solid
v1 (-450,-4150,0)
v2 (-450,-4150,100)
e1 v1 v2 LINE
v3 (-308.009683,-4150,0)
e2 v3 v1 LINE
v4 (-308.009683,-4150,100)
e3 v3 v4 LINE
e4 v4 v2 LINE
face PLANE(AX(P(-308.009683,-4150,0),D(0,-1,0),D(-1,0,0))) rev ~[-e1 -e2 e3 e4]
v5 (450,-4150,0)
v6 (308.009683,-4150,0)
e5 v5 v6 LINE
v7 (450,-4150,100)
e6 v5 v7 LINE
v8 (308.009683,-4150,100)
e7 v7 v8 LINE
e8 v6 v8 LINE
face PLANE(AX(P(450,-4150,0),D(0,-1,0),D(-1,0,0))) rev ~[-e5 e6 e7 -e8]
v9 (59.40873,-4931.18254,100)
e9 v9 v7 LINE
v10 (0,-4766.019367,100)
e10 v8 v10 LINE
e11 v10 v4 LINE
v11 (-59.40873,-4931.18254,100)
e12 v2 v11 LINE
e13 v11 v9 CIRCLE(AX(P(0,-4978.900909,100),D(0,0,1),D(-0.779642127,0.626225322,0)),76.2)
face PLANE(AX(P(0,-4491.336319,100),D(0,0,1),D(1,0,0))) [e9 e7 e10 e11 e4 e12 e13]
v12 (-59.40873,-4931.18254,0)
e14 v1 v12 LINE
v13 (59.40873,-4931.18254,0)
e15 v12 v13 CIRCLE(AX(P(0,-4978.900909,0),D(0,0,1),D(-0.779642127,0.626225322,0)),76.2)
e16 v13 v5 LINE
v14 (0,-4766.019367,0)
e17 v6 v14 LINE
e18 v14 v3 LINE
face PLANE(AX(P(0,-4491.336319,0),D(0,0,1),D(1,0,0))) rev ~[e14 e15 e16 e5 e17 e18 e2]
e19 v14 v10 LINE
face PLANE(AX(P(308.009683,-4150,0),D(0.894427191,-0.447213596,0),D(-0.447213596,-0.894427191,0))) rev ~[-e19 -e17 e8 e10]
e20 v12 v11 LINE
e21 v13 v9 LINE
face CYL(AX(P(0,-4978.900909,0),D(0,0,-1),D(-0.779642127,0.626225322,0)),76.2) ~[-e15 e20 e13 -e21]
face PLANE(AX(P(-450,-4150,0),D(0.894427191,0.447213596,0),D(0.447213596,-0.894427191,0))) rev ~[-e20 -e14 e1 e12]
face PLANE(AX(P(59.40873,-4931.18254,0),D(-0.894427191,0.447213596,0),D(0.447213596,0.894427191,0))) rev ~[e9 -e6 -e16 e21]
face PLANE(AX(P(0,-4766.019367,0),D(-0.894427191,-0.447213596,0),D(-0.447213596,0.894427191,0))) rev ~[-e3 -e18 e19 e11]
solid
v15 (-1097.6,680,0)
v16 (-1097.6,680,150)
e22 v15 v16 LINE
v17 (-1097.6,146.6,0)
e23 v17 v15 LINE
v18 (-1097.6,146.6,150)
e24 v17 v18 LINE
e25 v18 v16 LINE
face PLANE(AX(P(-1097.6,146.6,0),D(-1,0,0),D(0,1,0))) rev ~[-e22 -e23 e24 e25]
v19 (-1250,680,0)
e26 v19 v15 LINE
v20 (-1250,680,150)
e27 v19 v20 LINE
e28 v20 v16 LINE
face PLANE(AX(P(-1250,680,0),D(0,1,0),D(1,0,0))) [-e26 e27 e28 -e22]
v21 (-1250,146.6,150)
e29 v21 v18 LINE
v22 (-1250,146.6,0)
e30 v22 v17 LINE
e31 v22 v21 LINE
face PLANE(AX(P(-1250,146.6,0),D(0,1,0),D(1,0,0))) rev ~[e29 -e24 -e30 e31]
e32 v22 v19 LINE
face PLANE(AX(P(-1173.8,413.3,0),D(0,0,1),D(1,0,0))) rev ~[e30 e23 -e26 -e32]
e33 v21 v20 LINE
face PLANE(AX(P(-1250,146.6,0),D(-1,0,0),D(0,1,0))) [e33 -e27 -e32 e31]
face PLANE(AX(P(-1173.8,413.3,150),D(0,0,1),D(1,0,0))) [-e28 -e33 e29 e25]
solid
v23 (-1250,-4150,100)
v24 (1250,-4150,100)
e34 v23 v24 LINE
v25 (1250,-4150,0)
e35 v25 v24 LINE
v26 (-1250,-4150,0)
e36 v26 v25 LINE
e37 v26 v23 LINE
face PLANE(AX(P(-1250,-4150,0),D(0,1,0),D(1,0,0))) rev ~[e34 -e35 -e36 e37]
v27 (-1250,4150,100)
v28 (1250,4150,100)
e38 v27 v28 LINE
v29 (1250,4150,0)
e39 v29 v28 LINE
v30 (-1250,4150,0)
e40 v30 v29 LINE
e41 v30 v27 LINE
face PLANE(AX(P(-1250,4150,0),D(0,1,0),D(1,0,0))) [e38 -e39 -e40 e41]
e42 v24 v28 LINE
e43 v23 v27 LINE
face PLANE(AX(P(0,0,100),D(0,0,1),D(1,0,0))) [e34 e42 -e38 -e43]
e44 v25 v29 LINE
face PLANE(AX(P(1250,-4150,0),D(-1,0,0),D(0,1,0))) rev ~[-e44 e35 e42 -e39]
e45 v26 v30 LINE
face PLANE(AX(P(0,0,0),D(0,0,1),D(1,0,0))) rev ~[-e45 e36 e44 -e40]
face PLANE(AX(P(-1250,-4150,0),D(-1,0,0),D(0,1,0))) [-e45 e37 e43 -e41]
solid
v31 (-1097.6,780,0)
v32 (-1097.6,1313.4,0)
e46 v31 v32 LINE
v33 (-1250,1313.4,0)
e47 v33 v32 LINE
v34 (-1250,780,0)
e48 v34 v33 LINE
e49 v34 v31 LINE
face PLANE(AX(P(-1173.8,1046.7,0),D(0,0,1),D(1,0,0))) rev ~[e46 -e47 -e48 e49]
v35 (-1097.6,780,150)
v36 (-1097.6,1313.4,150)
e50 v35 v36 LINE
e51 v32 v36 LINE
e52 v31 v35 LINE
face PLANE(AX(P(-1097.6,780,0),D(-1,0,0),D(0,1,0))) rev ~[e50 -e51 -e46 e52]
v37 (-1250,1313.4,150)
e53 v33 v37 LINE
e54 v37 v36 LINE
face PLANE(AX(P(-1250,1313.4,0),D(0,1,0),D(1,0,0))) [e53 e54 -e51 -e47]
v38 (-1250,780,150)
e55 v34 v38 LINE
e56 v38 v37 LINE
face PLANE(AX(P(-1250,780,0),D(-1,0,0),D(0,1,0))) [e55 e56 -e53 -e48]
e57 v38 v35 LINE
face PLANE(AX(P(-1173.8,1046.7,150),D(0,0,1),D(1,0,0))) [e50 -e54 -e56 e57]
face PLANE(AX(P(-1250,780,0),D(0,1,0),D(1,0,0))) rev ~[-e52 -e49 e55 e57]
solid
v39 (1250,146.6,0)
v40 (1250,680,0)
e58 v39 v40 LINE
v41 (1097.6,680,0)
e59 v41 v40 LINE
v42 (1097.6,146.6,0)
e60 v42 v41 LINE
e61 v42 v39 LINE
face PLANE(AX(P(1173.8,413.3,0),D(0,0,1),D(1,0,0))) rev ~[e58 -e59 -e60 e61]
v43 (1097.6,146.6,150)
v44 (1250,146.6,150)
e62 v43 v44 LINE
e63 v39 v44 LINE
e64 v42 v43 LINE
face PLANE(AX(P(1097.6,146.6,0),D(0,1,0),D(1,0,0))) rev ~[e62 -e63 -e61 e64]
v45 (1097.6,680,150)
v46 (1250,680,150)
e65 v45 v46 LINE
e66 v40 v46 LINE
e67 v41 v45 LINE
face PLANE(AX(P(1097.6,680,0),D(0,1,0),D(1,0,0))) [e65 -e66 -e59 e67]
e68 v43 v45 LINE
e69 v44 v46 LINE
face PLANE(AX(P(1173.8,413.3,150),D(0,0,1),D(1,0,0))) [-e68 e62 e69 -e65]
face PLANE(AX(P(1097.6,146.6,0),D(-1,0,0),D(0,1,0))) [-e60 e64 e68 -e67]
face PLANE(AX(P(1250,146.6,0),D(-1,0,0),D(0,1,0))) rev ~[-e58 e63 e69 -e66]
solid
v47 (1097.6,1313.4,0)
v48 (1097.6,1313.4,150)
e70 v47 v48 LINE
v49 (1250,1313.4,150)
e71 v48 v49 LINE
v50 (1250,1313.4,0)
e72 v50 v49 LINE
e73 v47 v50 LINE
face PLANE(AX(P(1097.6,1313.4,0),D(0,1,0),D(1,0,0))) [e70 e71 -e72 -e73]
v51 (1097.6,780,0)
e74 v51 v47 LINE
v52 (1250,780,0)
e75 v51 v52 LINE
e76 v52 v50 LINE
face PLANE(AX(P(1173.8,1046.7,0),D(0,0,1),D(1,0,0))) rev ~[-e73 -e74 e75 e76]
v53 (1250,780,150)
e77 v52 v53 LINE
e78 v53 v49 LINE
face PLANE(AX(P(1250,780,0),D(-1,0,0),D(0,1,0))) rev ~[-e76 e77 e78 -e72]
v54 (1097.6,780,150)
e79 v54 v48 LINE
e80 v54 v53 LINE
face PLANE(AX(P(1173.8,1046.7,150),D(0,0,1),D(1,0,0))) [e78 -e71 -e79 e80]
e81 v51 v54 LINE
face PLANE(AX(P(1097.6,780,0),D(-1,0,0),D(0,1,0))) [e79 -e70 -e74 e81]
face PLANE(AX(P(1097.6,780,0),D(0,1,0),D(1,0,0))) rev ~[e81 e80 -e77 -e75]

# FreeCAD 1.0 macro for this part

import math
import FreeCAD as App
import Part
import Sketcher
from FreeCAD import Vector
Q = App.Units.Quantity

doc = App.newDocument("Part")
body = doc.addObject("PartDesign::Body", "Body")

# Sketch on XY plane
sketch1 = body.newObject("Sketcher::SketchObject", "Sketch")
sketch1.AttachmentSupport = (doc.getObject("XY_Plane"), [""])
sketch1.MapMode = "FlatFace"
sketch1.addGeometry([
    Part.LineSegment(Vector(-1250, 4150, 0), Vector(-1250, -4150, 0)),
    Part.LineSegment(Vector(-1250, -4150, 0), Vector(1250, -4150, 0)),
    Part.LineSegment(Vector(1250, -4150, 0), Vector(1250, 4150, 0)),
    Part.LineSegment(Vector(1250, 4150, 0), Vector(-1250, 4150, 0)),
], False)
sketch1.addConstraint([
    Sketcher.Constraint("Coincident", 0, 2, 1, 1),
    Sketcher.Constraint("Coincident", 1, 2, 2, 1),
    Sketcher.Constraint("Coincident", 2, 2, 3, 1),
    Sketcher.Constraint("Coincident", 3, 2, 0, 1),
    Sketcher.Constraint("Vertical", 0),
    Sketcher.Constraint("Horizontal", 1),
    Sketcher.Constraint("Vertical", 2),
    Sketcher.Constraint("Horizontal", 3),
    Sketcher.Constraint("Symmetric", 0, 2, 2, 2, -1, 1),
    Sketcher.Constraint("DistanceX", 1, 1, 1, 2, Q("2500 mm")),
    Sketcher.Constraint("DistanceY", 0, 2, 0, 1, Q("8300 mm")),
])
pad1 = body.newObject("PartDesign::Pad", "Pad")
pad1.Profile = sketch1
pad1.Length = 100
body2 = doc.addObject("PartDesign::Body", "Body001")

# Sketch on XY plane
sketch2 = body2.newObject("Sketcher::SketchObject", "Sketch001")
sketch2.AttachmentSupport = (doc.getObject("XY_Plane001"), [""])
sketch2.MapMode = "FlatFace"
sketch2.addGeometry([
    Part.LineSegment(Vector(59, -4931, 0), Vector(450, -4150, 0)),  # 0
    Part.LineSegment(Vector(450, -4150, 0), Vector(308, -4150, 0)),  # 1
    Part.LineSegment(Vector(308, -4150, 0), Vector(0, -4766, 0)),  # 2
    Part.LineSegment(Vector(0, -4766, 0), Vector(-308, -4150, 0)),  # 3
    Part.LineSegment(Vector(-308, -4150, 0), Vector(-450, -4150, 0)),  # 4
    Part.LineSegment(Vector(-450, -4150, 0), Vector(-59, -4931, 0)),  # 5
    Part.ArcOfCircle(Part.Circle(Vector(0, -4979, 0), Vector(0, 0, 1), 76), math.radians(141), math.radians(399)),  # 6
], False)
sketch2.addConstraint([
    Sketcher.Constraint("Coincident", 0, 2, 1, 1),
    Sketcher.Constraint("Coincident", 1, 2, 2, 1),
    Sketcher.Constraint("Coincident", 2, 2, 3, 1),
    Sketcher.Constraint("Coincident", 3, 2, 4, 1),
    Sketcher.Constraint("Coincident", 4, 2, 5, 1),
    Sketcher.Constraint("Coincident", 5, 2, 6, 1),
    Sketcher.Constraint("Coincident", 6, 2, 0, 1),
    Sketcher.Constraint("Horizontal", 1),
    Sketcher.Constraint("Horizontal", 4),
    Sketcher.Constraint("Symmetric", 1, 2, 3, 2, -2),
    Sketcher.Constraint("Symmetric", 5, 2, 6, 2, -2),
    Sketcher.Constraint("PointOnObject", 2, 2, -2),
    Sketcher.Constraint("Parallel", 0, 2),
    Sketcher.Constraint("Parallel", 3, 5),
    Sketcher.Constraint("Radius", 6, Q("76.2 mm")),
    Sketcher.Constraint("DistanceX", -1, 1, 0, 2, Q("450 mm")),
    Sketcher.Constraint("DistanceY", 0, 2, -1, 1, Q("4150 mm")),
    Sketcher.Constraint("Distance", 0, Q("873.388631 mm")),
    Sketcher.Constraint("Distance", 2, Q("688.73059 mm")),
    Sketcher.Constraint("DistanceX", 1, 2, 1, 1, Q("141.990317 mm")),
])
pad2 = body2.newObject("PartDesign::Pad", "Pad001")
pad2.Profile = sketch2
pad2.Length = 100
body3 = doc.addObject("PartDesign::Body", "Body002")

# Sketch on XY plane
sketch3 = body3.newObject("Sketcher::SketchObject", "Sketch002")
sketch3.AttachmentSupport = (doc.getObject("XY_Plane002"), [""])
sketch3.MapMode = "FlatFace"
sketch3.addGeometry([
    Part.LineSegment(Vector(-1250, 1313, 0), Vector(-1250, 780, 0)),
    Part.LineSegment(Vector(-1250, 780, 0), Vector(-1098, 780, 0)),
    Part.LineSegment(Vector(-1098, 780, 0), Vector(-1098, 1313, 0)),
    Part.LineSegment(Vector(-1098, 1313, 0), Vector(-1250, 1313, 0)),
], False)
sketch3.addConstraint([
    Sketcher.Constraint("Coincident", 0, 2, 1, 1),
    Sketcher.Constraint("Coincident", 1, 2, 2, 1),
    Sketcher.Constraint("Coincident", 2, 2, 3, 1),
    Sketcher.Constraint("Coincident", 3, 2, 0, 1),
    Sketcher.Constraint("Vertical", 0),
    Sketcher.Constraint("Horizontal", 1),
    Sketcher.Constraint("Vertical", 2),
    Sketcher.Constraint("Horizontal", 3),
    Sketcher.Constraint("DistanceX", 1, 1, 1, 2, Q("152.4 mm")),
    Sketcher.Constraint("DistanceY", 0, 2, 0, 1, Q("533.4 mm")),
    Sketcher.Constraint("DistanceX", 0, 2, -1, 1, Q("1250 mm")),
    Sketcher.Constraint("DistanceY", -1, 1, 0, 2, Q("780 mm")),
])
pad3 = body3.newObject("PartDesign::Pad", "Pad002")
pad3.Profile = sketch3
pad3.Length = 150
body4 = doc.addObject("PartDesign::Body", "Body003")

# Sketch on XY plane
sketch4 = body4.newObject("Sketcher::SketchObject", "Sketch003")
sketch4.AttachmentSupport = (doc.getObject("XY_Plane003"), [""])
sketch4.MapMode = "FlatFace"
sketch4.addGeometry([
    Part.LineSegment(Vector(-1250, 680, 0), Vector(-1250, 147, 0)),
    Part.LineSegment(Vector(-1250, 147, 0), Vector(-1098, 147, 0)),
    Part.LineSegment(Vector(-1098, 147, 0), Vector(-1098, 680, 0)),
    Part.LineSegment(Vector(-1098, 680, 0), Vector(-1250, 680, 0)),
], False)
sketch4.addConstraint([
    Sketcher.Constraint("Coincident", 0, 2, 1, 1),
    Sketcher.Constraint("Coincident", 1, 2, 2, 1),
    Sketcher.Constraint("Coincident", 2, 2, 3, 1),
    Sketcher.Constraint("Coincident", 3, 2, 0, 1),
    Sketcher.Constraint("Vertical", 0),
    Sketcher.Constraint("Horizontal", 1),
    Sketcher.Constraint("Vertical", 2),
    Sketcher.Constraint("Horizontal", 3),
    Sketcher.Constraint("DistanceX", 1, 1, 1, 2, Q("152.4 mm")),
    Sketcher.Constraint("DistanceY", 0, 2, 0, 1, Q("533.4 mm")),
    Sketcher.Constraint("DistanceX", 0, 2, -1, 1, Q("1250 mm")),
    Sketcher.Constraint("DistanceY", -1, 1, 2, 2, Q("680 mm")),
])
pad4 = body4.newObject("PartDesign::Pad", "Pad003")
pad4.Profile = sketch4
pad4.Length = 150
body5 = doc.addObject("PartDesign::Body", "Body004")

# Sketch on XY plane
sketch5 = body5.newObject("Sketcher::SketchObject", "Sketch004")
sketch5.AttachmentSupport = (doc.getObject("XY_Plane004"), [""])
sketch5.MapMode = "FlatFace"
sketch5.addGeometry([
    Part.LineSegment(Vector(1098, 680, 0), Vector(1098, 147, 0)),
    Part.LineSegment(Vector(1098, 147, 0), Vector(1250, 147, 0)),
    Part.LineSegment(Vector(1250, 147, 0), Vector(1250, 680, 0)),
    Part.LineSegment(Vector(1250, 680, 0), Vector(1098, 680, 0)),
], False)
sketch5.addConstraint([
    Sketcher.Constraint("Coincident", 0, 2, 1, 1),
    Sketcher.Constraint("Coincident", 1, 2, 2, 1),
    Sketcher.Constraint("Coincident", 2, 2, 3, 1),
    Sketcher.Constraint("Coincident", 3, 2, 0, 1),
    Sketcher.Constraint("Vertical", 0),
    Sketcher.Constraint("Horizontal", 1),
    Sketcher.Constraint("Vertical", 2),
    Sketcher.Constraint("Horizontal", 3),
    Sketcher.Constraint("DistanceX", 1, 1, 1, 2, Q("152.4 mm")),
    Sketcher.Constraint("DistanceY", 0, 2, 0, 1, Q("533.4 mm")),
    Sketcher.Constraint("DistanceX", -1, 1, 1, 2, Q("1250 mm")),
    Sketcher.Constraint("DistanceY", -1, 1, 2, 2, Q("680 mm")),
])
pad5 = body5.newObject("PartDesign::Pad", "Pad004")
pad5.Profile = sketch5
pad5.Length = 150
body6 = doc.addObject("PartDesign::Body", "Body005")

# Sketch on XY plane
sketch6 = body6.newObject("Sketcher::SketchObject", "Sketch005")
sketch6.AttachmentSupport = (doc.getObject("XY_Plane005"), [""])
sketch6.MapMode = "FlatFace"
sketch6.addGeometry([
    Part.LineSegment(Vector(1098, 1313, 0), Vector(1098, 780, 0)),
    Part.LineSegment(Vector(1098, 780, 0), Vector(1250, 780, 0)),
    Part.LineSegment(Vector(1250, 780, 0), Vector(1250, 1313, 0)),
    Part.LineSegment(Vector(1250, 1313, 0), Vector(1098, 1313, 0)),
], False)
sketch6.addConstraint([
    Sketcher.Constraint("Coincident", 0, 2, 1, 1),
    Sketcher.Constraint("Coincident", 1, 2, 2, 1),
    Sketcher.Constraint("Coincident", 2, 2, 3, 1),
    Sketcher.Constraint("Coincident", 3, 2, 0, 1),
    Sketcher.Constraint("Vertical", 0),
    Sketcher.Constraint("Horizontal", 1),
    Sketcher.Constraint("Vertical", 2),
    Sketcher.Constraint("Horizontal", 3),
    Sketcher.Constraint("DistanceX", 1, 1, 1, 2, Q("152.4 mm")),
    Sketcher.Constraint("DistanceY", 0, 2, 0, 1, Q("533.4 mm")),
    Sketcher.Constraint("DistanceY", -1, 1, 0, 2, Q("780 mm")),
    Sketcher.Constraint("DistanceX", -1, 1, 1, 2, Q("1250 mm")),
])
pad6 = body6.newObject("PartDesign::Pad", "Pad005")
pad6.Profile = sketch6
pad6.Length = 150

doc.recompute()
